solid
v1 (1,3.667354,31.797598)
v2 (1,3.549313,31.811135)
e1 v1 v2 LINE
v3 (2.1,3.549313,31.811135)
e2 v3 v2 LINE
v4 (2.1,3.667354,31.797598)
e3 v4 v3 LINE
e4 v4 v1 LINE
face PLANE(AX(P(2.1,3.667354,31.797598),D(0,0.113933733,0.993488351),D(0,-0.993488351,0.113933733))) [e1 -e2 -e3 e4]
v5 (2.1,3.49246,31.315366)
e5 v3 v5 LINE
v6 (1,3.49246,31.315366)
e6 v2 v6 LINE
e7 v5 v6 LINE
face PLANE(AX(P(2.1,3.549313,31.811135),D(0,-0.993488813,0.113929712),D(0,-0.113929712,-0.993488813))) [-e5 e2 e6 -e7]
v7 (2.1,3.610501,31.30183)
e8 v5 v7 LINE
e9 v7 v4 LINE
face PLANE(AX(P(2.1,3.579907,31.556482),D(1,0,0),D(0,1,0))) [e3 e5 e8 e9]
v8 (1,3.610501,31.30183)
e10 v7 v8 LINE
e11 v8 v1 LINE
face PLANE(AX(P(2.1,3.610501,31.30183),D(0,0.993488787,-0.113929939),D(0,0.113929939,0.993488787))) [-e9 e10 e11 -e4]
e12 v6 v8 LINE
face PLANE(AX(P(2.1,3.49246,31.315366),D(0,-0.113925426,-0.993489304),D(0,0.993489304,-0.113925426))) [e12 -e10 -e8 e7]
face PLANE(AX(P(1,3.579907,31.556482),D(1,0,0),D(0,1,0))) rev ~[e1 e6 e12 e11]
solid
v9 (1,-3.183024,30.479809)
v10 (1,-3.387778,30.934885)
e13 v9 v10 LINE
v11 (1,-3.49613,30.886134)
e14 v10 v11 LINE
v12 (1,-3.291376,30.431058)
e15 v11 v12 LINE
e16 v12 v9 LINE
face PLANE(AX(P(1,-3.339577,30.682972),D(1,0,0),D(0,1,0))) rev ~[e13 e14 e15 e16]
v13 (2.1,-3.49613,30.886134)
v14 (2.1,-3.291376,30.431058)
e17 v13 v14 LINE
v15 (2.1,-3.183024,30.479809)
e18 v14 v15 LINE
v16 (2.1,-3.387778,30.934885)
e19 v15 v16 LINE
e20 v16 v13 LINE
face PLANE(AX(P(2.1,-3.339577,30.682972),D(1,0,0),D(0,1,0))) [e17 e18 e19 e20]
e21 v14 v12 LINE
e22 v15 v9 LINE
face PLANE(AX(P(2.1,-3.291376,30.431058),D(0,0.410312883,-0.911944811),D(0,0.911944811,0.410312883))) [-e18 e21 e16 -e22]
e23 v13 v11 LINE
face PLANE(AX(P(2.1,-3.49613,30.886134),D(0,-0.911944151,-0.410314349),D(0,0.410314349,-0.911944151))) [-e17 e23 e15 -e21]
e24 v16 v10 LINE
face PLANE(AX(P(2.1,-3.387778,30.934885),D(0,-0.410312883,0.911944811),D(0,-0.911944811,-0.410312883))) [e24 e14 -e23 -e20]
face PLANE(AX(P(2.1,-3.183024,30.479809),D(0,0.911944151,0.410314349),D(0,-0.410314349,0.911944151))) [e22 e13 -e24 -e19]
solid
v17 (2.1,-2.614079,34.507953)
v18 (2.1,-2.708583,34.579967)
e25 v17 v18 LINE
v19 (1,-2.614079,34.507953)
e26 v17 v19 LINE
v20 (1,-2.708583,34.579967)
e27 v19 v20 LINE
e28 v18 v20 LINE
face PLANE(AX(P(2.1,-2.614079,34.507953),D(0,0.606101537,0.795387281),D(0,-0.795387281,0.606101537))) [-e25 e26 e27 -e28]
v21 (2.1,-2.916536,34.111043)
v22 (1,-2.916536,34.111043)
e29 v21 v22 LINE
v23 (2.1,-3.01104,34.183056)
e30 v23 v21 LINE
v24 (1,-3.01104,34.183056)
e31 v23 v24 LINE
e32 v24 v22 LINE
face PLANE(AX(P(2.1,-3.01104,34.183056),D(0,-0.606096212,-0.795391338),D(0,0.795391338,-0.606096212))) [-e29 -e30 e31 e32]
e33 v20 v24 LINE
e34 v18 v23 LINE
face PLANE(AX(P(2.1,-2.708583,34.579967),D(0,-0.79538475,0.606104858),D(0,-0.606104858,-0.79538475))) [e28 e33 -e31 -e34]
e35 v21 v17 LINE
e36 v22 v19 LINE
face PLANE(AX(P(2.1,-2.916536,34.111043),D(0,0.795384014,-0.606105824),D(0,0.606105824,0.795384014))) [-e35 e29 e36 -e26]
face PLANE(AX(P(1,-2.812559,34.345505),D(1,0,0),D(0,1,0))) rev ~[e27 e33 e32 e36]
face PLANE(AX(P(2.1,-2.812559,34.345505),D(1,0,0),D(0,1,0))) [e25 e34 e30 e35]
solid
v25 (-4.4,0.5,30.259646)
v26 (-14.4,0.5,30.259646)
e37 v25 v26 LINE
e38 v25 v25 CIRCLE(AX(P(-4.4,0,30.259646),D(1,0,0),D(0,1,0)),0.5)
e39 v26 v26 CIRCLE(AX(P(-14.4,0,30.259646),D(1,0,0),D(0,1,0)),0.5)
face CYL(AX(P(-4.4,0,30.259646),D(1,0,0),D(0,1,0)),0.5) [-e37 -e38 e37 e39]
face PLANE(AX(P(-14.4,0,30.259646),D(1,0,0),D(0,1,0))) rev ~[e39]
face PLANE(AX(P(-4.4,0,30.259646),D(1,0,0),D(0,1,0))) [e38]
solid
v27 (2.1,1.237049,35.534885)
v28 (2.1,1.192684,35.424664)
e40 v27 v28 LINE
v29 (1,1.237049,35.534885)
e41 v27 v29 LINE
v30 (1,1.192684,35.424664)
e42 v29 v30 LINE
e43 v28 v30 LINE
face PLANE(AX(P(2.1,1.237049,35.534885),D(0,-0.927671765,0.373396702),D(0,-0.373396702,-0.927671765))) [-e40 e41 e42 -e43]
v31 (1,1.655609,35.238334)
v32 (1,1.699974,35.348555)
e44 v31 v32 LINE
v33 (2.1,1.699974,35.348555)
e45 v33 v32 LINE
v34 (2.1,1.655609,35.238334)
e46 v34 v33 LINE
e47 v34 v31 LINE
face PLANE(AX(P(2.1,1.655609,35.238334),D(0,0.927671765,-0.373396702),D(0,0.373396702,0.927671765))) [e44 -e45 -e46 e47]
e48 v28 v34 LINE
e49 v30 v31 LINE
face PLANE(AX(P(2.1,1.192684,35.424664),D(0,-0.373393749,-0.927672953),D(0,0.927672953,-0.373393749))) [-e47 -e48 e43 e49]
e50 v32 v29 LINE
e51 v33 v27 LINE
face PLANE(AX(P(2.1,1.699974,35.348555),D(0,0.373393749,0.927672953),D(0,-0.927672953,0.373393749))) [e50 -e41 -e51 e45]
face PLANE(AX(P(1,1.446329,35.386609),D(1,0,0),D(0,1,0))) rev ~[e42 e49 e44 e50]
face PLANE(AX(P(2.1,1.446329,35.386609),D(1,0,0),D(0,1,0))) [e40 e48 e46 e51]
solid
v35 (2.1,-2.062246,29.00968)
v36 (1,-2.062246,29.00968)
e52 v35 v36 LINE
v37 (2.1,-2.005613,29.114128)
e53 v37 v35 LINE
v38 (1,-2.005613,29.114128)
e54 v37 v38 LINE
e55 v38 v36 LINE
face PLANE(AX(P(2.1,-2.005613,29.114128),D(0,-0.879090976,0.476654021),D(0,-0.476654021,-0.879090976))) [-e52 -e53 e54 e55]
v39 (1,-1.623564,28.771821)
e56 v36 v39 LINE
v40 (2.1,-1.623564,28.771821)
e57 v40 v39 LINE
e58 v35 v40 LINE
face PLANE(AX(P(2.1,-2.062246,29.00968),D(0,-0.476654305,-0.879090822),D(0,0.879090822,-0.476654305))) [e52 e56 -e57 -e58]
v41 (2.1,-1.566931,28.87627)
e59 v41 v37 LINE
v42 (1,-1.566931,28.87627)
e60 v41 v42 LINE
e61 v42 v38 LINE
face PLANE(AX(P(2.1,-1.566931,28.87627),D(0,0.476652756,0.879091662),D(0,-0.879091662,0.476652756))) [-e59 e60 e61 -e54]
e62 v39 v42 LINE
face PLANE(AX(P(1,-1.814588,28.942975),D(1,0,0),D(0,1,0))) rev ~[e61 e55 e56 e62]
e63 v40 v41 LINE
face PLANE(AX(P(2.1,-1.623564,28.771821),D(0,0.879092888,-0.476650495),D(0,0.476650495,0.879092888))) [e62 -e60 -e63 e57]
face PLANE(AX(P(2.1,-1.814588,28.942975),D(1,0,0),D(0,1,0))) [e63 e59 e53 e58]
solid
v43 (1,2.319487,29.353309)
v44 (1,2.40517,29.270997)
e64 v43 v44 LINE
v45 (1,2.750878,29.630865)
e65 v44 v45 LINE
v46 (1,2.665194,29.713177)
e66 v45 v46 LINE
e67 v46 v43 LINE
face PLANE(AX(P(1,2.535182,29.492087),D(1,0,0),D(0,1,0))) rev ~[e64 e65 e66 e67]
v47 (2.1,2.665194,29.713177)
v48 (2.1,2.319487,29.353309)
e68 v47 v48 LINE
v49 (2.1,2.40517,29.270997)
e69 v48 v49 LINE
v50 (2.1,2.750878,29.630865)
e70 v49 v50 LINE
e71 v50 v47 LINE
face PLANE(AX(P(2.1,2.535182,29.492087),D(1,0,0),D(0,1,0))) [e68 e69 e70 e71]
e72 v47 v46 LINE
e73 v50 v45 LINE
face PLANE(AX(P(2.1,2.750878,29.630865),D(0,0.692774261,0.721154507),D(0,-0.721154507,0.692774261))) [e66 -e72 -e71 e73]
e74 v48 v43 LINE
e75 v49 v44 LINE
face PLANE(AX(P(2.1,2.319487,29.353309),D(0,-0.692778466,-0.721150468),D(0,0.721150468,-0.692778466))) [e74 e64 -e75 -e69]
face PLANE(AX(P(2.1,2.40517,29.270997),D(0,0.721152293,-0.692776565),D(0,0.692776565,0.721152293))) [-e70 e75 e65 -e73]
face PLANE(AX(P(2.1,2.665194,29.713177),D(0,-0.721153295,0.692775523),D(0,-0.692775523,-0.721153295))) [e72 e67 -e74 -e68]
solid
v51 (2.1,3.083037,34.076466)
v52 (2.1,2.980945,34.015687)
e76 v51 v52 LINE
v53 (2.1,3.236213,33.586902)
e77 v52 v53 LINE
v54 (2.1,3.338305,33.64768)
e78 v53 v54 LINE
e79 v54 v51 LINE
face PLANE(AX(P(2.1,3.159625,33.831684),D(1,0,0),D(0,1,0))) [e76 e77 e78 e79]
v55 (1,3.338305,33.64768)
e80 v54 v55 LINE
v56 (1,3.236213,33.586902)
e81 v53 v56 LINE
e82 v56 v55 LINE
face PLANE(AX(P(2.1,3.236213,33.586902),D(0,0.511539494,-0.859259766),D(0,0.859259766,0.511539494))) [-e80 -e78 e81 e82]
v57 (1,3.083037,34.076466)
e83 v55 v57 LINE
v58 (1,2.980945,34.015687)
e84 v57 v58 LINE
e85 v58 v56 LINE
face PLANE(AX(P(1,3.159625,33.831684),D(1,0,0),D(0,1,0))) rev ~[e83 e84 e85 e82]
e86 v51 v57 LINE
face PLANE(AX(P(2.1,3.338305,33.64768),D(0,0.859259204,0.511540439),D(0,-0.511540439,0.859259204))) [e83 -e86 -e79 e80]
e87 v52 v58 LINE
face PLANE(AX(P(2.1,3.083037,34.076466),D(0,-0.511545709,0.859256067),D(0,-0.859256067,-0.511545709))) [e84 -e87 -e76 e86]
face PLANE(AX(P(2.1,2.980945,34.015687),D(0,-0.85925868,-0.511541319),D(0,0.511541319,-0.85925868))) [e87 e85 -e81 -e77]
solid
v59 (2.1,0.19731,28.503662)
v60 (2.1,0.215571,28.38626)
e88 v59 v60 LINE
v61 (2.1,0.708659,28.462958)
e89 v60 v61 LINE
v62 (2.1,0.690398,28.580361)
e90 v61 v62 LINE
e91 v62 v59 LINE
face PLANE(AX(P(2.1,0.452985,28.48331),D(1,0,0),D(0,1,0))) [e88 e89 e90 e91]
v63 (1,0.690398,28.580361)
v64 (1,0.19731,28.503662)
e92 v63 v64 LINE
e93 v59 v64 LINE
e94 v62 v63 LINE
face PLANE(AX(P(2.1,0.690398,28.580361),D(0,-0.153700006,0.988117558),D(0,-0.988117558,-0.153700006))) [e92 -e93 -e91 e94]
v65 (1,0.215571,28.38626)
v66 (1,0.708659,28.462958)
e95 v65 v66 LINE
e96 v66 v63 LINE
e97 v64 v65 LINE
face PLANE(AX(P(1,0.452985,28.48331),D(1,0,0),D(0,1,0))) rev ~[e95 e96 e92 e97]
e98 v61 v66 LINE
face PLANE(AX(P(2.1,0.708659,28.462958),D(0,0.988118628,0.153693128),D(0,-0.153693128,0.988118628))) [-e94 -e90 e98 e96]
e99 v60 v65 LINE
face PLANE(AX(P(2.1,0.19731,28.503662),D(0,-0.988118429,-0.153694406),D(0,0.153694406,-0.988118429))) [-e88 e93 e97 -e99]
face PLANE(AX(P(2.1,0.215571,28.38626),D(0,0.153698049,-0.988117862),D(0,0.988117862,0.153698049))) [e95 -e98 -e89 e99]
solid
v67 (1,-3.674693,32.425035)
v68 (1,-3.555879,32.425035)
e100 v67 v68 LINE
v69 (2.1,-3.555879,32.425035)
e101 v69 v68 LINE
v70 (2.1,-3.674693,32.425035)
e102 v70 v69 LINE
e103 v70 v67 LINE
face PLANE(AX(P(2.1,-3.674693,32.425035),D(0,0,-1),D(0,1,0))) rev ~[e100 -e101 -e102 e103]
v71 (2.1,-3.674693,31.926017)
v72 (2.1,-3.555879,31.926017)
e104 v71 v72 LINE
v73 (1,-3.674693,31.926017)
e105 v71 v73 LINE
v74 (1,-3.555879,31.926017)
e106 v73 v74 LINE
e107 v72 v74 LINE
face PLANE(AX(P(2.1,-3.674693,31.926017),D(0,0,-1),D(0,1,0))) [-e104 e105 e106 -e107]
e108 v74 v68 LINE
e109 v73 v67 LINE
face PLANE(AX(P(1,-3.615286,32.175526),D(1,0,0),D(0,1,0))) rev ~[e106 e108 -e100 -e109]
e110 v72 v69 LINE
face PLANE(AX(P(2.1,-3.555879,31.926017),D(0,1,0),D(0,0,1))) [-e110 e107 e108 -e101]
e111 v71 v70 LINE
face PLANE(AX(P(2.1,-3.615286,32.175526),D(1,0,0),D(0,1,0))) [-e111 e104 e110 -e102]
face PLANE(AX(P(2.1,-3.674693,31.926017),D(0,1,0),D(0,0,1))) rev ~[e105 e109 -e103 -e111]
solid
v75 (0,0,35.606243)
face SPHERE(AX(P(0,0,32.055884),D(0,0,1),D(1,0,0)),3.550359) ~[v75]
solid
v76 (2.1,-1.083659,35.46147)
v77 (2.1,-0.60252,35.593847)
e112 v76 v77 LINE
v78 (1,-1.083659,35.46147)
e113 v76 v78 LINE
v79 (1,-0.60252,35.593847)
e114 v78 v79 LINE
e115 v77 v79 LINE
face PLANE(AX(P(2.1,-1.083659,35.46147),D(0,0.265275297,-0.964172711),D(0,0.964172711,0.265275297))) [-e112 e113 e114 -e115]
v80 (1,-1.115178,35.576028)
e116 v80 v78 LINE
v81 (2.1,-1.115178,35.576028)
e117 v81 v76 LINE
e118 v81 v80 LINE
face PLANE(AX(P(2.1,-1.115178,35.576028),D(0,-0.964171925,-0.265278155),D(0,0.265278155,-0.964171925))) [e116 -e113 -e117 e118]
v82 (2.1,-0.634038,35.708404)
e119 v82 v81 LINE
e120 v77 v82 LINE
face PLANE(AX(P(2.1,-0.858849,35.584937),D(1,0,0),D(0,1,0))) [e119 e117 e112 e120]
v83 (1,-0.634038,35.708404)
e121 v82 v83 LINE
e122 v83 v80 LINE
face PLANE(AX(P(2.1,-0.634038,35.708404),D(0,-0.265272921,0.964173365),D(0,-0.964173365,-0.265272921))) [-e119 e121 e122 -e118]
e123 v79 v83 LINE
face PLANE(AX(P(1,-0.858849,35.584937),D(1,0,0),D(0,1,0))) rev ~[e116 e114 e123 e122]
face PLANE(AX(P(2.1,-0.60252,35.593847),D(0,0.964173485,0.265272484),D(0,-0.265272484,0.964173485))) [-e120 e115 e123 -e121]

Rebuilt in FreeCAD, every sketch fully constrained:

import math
import FreeCAD as App
import Part
import Sketcher
from FreeCAD import Vector


def add_polygon(sketch, points):
    """Adds a closed chain of lines whose ends are joined by coincident constraints."""
    first, n = sketch.GeometryCount, len(points)
    for a, b in zip(points, points[1:] + points[:1]):
        sketch.addGeometry(Part.LineSegment(App.Vector(*a, 0), App.Vector(*b, 0)), False)
    for i in range(n):
        sketch.addConstraint(Sketcher.Constraint("Coincident", first + i, 2, first + (i + 1) % n, 1))

doc = App.newDocument("Part")
params = doc.addObject("Spreadsheet::Sheet", "Params")
for row, (alias, value) in enumerate([
    ("revolution_angle", "360 deg"),
    ("sketch2_diameter", "1 mm"),
    ("pad1_length", "10 mm"),
    ("pad2_length", "1.1 mm"),
], start=1):
    params.set(f"A{row}", alias)
    params.set(f"B{row}", "=" + value)
    params.setAlias(f"B{row}", alias)

body = doc.addObject("PartDesign::Body", "Body")

sketch1 = doc.addObject("Sketcher::SketchObject", "Sketch")
body.addObject(sketch1)
sketch1.AttachmentSupport = (doc.XZ_Plane, [""])
sketch1.MapMode = "FlatFace"
sketch1.addGeometry(Part.ArcOfCircle(Part.Circle(Vector(0, 32.055884, 0), Vector(0, 0, 1), 3.550359), math.radians(-90), math.radians(90)), False)
sketch1.addGeometry(Part.LineSegment(Vector(0, 35.606243, 0), Vector(0, 28.505525, 0)), False)
sketch1.addConstraint(Sketcher.Constraint("Coincident", 0, 1, 1, 2))
sketch1.addConstraint(Sketcher.Constraint("Coincident", 1, 1, 0, 2))
sketch1.addConstraint(Sketcher.Constraint("Vertical", 1))
sketch1.addConstraint(Sketcher.Constraint("PointOnObject", 0, 3, -2))
sketch1.addConstraint(Sketcher.Constraint("PointOnObject", 0, 1, -2))
sketch1.addConstraint(Sketcher.Constraint("Radius", 0, 3.550359))
sketch1.addConstraint(Sketcher.Constraint("DistanceY", -1, 1, 0, 3, 32.055884))
revolution = doc.addObject("PartDesign::Revolution", "Revolution")
body.addObject(revolution)
revolution.Profile = sketch1
revolution.ReferenceAxis = (sketch1, ["V_Axis"])
revolution.setExpression("Angle", "Params.revolution_angle")
body2 = doc.addObject("PartDesign::Body", "Body001")

sketch2 = doc.addObject("Sketcher::SketchObject", "Sketch001")
body2.addObject(sketch2)
sketch2.AttachmentSupport = (doc.getObject("YZ_Plane001"), [""])
sketch2.MapMode = "FlatFace"
sketch2.AttachmentOffset = App.Placement(Vector(0, 0, -4.4), App.Rotation())
sketch2.addGeometry(Part.Circle(Vector(0, 30.259646, 0), Vector(0, 0, 1), 0.5), False)
sketch2.addConstraint(Sketcher.Constraint("PointOnObject", 0, 3, -2))
sketch2.addConstraint(Sketcher.Constraint("Diameter", 0, 1.0))
sketch2.addConstraint(Sketcher.Constraint("DistanceY", -1, 1, 0, 3, 30.259646))
sketch2.setExpression("Constraints[1]", "Params.sketch2_diameter")
pad1 = doc.addObject("PartDesign::Pad", "Pad")
body2.addObject(pad1)
pad1.Profile = sketch2
pad1.setExpression("Length", "Params.pad1_length")
pad1.Reversed = True
body3 = doc.addObject("PartDesign::Body", "Body002")
body3.AllowCompound = True

sketch3 = doc.addObject("Sketcher::SketchObject", "Sketch002")
body3.addObject(sketch3)
sketch3.AttachmentSupport = (doc.getObject("YZ_Plane002"), [""])
sketch3.MapMode = "FlatFace"
sketch3.AttachmentOffset = App.Placement(Vector(0, 0, 2.1), App.Rotation())
add_polygon(sketch3, [(-3.674693, 32.425035), (-3.674693, 31.926017), (-3.555879, 31.926017), (-3.555879, 32.425035)])
add_polygon(sketch3, [(-2.614079, 34.507953), (-2.708583, 34.579967), (-3.01104, 34.183056), (-2.916536, 34.111043)])
add_polygon(sketch3, [(-0.60252, 35.593847), (-0.634038, 35.708404), (-1.115178, 35.576028), (-1.083659, 35.46147)])
add_polygon(sketch3, [(1.655609, 35.238334), (1.699974, 35.348555), (1.237049, 35.534885), (1.192684, 35.424664)])
add_polygon(sketch3, [(3.236213, 33.586902), (3.338305, 33.64768), (3.083037, 34.076466), (2.980945, 34.015687)])
add_polygon(sketch3, [(3.49246, 31.315366), (3.610501, 31.30183), (3.667354, 31.797598), (3.549313, 31.811135)])
add_polygon(sketch3, [(2.319487, 29.353309), (2.40517, 29.270997), (2.750878, 29.630865), (2.665194, 29.713177)])
add_polygon(sketch3, [(0.19731, 28.503662), (0.215571, 28.38626), (0.708659, 28.462958), (0.690398, 28.580361)])
add_polygon(sketch3, [(-2.005613, 29.114128), (-2.062246, 29.00968), (-1.623564, 28.771821), (-1.566931, 28.87627)])
add_polygon(sketch3, [(-3.387778, 30.934885), (-3.49613, 30.886134), (-3.291376, 30.431058), (-3.183024, 30.479809)])
sketch3.addConstraint(Sketcher.Constraint("Vertical", 0))
sketch3.addConstraint(Sketcher.Constraint("Horizontal", 1))
sketch3.addConstraint(Sketcher.Constraint("Vertical", 2))
sketch3.addConstraint(Sketcher.Constraint("Horizontal", 3))
sketch3.addConstraint(Sketcher.Constraint("DistanceX", -1, 1, 20, 2, 3.610501))
sketch3.addConstraint(Sketcher.Constraint("DistanceY", -1, 1, 21, 2, 31.797598))
sketch3.addConstraint(Sketcher.Constraint("DistanceX", 2, 2, 7, 2, 0.9418))
sketch3.addConstraint(Sketcher.Constraint("DistanceX", 7, 2, 9, 2, 1.498901))
sketch3.addConstraint(Sketcher.Constraint("DistanceY", 7, 2, 12, 2, 0.840602))
sketch3.addConstraint(Sketcher.Constraint("DistanceX", 19, 2, 22, 2, 0.3131))
sketch3.addConstraint(Sketcher.Constraint("DistanceY", 24, 2, 21, 2, 2.526601))
sketch3.addConstraint(Sketcher.Constraint("DistanceY", 25, 2, 23, 2, 1.684501))
sketch3.addConstraint(Sketcher.Constraint("DistanceX", 28, 2, 24, 2, 2.189599))
sketch3.addConstraint(Sketcher.Constraint("DistanceY", 28, 2, 29, 2, 0.076698))
sketch3.addConstraint(Sketcher.Constraint("DistanceY", 28, 2, 30, 2, 0.194101))
sketch3.addConstraint(Sketcher.Constraint("DistanceY", 28, 2, 31, 2, 0.117402))
sketch3.addConstraint(Sketcher.Constraint("DistanceY", 36, 2, 2, 2, 1.538901))
sketch3.addConstraint(Sketcher.Constraint("DistanceX", 39, 2, 37, 2, 0.096402))
sketch3.addConstraint(Sketcher.Constraint("DistanceX", 1, 2, 39, 2, 0.168101))
sketch3.addConstraint(Sketcher.Constraint("Distance", 9, 0.499018))
sketch3.addConstraint(Sketcher.Constraint("Distance", 17, 0.499018))
sketch3.addConstraint(Sketcher.Constraint("Distance", 23, 0.499018))
sketch3.addConstraint(Sketcher.Constraint("Distance", 25, 0.499018))
sketch3.addConstraint(Sketcher.Constraint("DistanceX", 1, 1, 1, 2, 0.118814))
sketch3.addConstraint(Sketcher.Constraint("DistanceY", 0, 2, 0, 1, 0.499018))
sketch3.addConstraint(Sketcher.Constraint("DistanceX", 1, 2, -1, 1, 3.555879))
sketch3.addConstraint(Sketcher.Constraint("DistanceX", 5, 2, -1, 1, 3.01104))
sketch3.addConstraint(Sketcher.Constraint("DistanceX", 10, 2, -1, 1, 1.083659))
sketch3.addConstraint(Sketcher.Constraint("DistanceY", -1, 1, 10, 2, 35.46147))
sketch3.addConstraint(Sketcher.Constraint("DistanceX", 11, 2, -1, 1, 0.60252))
sketch3.addConstraint(Sketcher.Constraint("DistanceX", -1, 1, 13, 2, 1.237049))
sketch3.addConstraint(Sketcher.Constraint("DistanceX", -1, 1, 15, 2, 1.655609))
sketch3.addConstraint(Sketcher.Constraint("DistanceY", -1, 1, 16, 2, 33.64768))
sketch3.addConstraint(Sketcher.Constraint("DistanceY", -1, 1, 20, 2, 31.30183))
sketch3.addConstraint(Sketcher.Constraint("DistanceX", -1, 1, 23, 2, 3.49246))
sketch3.addConstraint(Sketcher.Constraint("DistanceX", -1, 1, 24, 2, 2.40517))
sketch3.addConstraint(Sketcher.Constraint("DistanceX", -1, 1, 25, 2, 2.750878))
sketch3.addConstraint(Sketcher.Constraint("DistanceY", -1, 1, 27, 2, 29.353309))
sketch3.addConstraint(Sketcher.Constraint("DistanceY", -1, 1, 28, 2, 28.38626))
sketch3.addConstraint(Sketcher.Constraint("DistanceX", -1, 1, 29, 2, 0.708659))
sketch3.addConstraint(Sketcher.Constraint("DistanceX", -1, 1, 31, 2, 0.19731))
sketch3.addConstraint(Sketcher.Constraint("DistanceY", -1, 1, 32, 2, 29.00968))
sketch3.addConstraint(Sketcher.Constraint("DistanceY", -1, 1, 33, 2, 28.771821))
sketch3.addConstraint(Sketcher.Constraint("DistanceX", 34, 2, -1, 1, 1.566931))
sketch3.addConstraint(Sketcher.Constraint("DistanceY", -1, 1, 34, 2, 28.87627))
sketch3.addConstraint(Sketcher.Constraint("DistanceY", -1, 1, 35, 2, 29.114128))
sketch3.addConstraint(Sketcher.Constraint("DistanceX", 36, 2, -1, 1, 3.49613))
sketch3.addConstraint(Sketcher.Constraint("DistanceY", -1, 1, 37, 2, 30.431058))
sketch3.addConstraint(Sketcher.Constraint("DistanceY", -1, 1, 38, 2, 30.479809))
sketch3.addConstraint(Sketcher.Constraint("DistanceX", 3, 2, 4, 2, 0.96611))
sketch3.addConstraint(Sketcher.Constraint("DistanceY", 1, 2, 4, 2, 2.65395))
sketch3.addConstraint(Sketcher.Constraint("DistanceY", 5, 2, 4, 2, 0.396911))
sketch3.addConstraint(Sketcher.Constraint("DistanceY", 2, 2, 6, 2, 1.686008))
sketch3.addConstraint(Sketcher.Constraint("DistanceY", 6, 2, 7, 2, 0.39691))
sketch3.addConstraint(Sketcher.Constraint("DistanceX", 7, 2, 8, 2, 1.980041))
sketch3.addConstraint(Sketcher.Constraint("DistanceY", 7, 2, 8, 2, 1.200451))
sketch3.addConstraint(Sketcher.Constraint("DistanceY", 10, 2, 9, 2, 0.114558))
sketch3.addConstraint(Sketcher.Constraint("DistanceY", 9, 2, 11, 2, 0.017819))
sketch3.addConstraint(Sketcher.Constraint("DistanceX", 8, 2, 12, 2, 2.334012))
sketch3.addConstraint(Sketcher.Constraint("DistanceY", 12, 2, 13, 2, 0.18633))
sketch3.addConstraint(Sketcher.Constraint("DistanceY", 14, 2, 13, 2, 0.110221))
sketch3.addConstraint(Sketcher.Constraint("DistanceX", 14, 2, 12, 2, 0.50729))
sketch3.addConstraint(Sketcher.Constraint("DistanceY", 15, 2, 12, 2, 0.110221))
sketch3.addConstraint(Sketcher.Constraint("DistanceX", 12, 2, 16, 2, 1.638331))
sketch3.addConstraint(Sketcher.Constraint("DistanceX", 17, 2, 16, 2, 0.255268))
sketch3.addConstraint(Sketcher.Constraint("DistanceX", 18, 2, 17, 2, 0.102092))
sketch3.addConstraint(Sketcher.Constraint("DistanceY", 18, 2, 17, 2, 0.060779))
sketch3.addConstraint(Sketcher.Constraint("DistanceY", 19, 2, 15, 2, 1.651432))
sketch3.addConstraint(Sketcher.Constraint("DistanceX", 12, 2, 19, 2, 1.536239))
sketch3.addConstraint(Sketcher.Constraint("DistanceX", 19, 2, 21, 2, 0.431141))
sketch3.addConstraint(Sketcher.Constraint("DistanceY", 24, 2, 26, 2, 0.44218))
sketch3.addConstraint(Sketcher.Constraint("DistanceX", 26, 2, 22, 2, 0.884119))
sketch3.addConstraint(Sketcher.Constraint("DistanceX", 27, 2, 25, 2, 0.431391))
sketch3.addConstraint(Sketcher.Constraint("DistanceX", 30, 2, 29, 2, 0.018261))
sketch3.addConstraint(Sketcher.Constraint("DistanceX", 35, 2, 34, 2, 0.438682))
sketch3.addConstraint(Sketcher.Constraint("DistanceX", 35, 2, 33, 2, 0.382049))
sketch3.addConstraint(Sketcher.Constraint("DistanceX", 37, 2, 32, 2, 1.22913))
sketch3.addConstraint(Sketcher.Constraint("DistanceX", 0, 2, 38, 2, 0.491669))
sketch3.addConstraint(Sketcher.Constraint("DistanceY", 36, 2, 39, 2, 0.048751))
sketch3.addConstraint(Sketcher.Constraint("Distance", 6, 0.118814))
pad2 = doc.addObject("PartDesign::Pad", "Pad001")
body3.addObject(pad2)
pad2.Profile = sketch3
pad2.setExpression("Length", "Params.pad2_length")
pad2.Reversed = True

doc.recompute()
